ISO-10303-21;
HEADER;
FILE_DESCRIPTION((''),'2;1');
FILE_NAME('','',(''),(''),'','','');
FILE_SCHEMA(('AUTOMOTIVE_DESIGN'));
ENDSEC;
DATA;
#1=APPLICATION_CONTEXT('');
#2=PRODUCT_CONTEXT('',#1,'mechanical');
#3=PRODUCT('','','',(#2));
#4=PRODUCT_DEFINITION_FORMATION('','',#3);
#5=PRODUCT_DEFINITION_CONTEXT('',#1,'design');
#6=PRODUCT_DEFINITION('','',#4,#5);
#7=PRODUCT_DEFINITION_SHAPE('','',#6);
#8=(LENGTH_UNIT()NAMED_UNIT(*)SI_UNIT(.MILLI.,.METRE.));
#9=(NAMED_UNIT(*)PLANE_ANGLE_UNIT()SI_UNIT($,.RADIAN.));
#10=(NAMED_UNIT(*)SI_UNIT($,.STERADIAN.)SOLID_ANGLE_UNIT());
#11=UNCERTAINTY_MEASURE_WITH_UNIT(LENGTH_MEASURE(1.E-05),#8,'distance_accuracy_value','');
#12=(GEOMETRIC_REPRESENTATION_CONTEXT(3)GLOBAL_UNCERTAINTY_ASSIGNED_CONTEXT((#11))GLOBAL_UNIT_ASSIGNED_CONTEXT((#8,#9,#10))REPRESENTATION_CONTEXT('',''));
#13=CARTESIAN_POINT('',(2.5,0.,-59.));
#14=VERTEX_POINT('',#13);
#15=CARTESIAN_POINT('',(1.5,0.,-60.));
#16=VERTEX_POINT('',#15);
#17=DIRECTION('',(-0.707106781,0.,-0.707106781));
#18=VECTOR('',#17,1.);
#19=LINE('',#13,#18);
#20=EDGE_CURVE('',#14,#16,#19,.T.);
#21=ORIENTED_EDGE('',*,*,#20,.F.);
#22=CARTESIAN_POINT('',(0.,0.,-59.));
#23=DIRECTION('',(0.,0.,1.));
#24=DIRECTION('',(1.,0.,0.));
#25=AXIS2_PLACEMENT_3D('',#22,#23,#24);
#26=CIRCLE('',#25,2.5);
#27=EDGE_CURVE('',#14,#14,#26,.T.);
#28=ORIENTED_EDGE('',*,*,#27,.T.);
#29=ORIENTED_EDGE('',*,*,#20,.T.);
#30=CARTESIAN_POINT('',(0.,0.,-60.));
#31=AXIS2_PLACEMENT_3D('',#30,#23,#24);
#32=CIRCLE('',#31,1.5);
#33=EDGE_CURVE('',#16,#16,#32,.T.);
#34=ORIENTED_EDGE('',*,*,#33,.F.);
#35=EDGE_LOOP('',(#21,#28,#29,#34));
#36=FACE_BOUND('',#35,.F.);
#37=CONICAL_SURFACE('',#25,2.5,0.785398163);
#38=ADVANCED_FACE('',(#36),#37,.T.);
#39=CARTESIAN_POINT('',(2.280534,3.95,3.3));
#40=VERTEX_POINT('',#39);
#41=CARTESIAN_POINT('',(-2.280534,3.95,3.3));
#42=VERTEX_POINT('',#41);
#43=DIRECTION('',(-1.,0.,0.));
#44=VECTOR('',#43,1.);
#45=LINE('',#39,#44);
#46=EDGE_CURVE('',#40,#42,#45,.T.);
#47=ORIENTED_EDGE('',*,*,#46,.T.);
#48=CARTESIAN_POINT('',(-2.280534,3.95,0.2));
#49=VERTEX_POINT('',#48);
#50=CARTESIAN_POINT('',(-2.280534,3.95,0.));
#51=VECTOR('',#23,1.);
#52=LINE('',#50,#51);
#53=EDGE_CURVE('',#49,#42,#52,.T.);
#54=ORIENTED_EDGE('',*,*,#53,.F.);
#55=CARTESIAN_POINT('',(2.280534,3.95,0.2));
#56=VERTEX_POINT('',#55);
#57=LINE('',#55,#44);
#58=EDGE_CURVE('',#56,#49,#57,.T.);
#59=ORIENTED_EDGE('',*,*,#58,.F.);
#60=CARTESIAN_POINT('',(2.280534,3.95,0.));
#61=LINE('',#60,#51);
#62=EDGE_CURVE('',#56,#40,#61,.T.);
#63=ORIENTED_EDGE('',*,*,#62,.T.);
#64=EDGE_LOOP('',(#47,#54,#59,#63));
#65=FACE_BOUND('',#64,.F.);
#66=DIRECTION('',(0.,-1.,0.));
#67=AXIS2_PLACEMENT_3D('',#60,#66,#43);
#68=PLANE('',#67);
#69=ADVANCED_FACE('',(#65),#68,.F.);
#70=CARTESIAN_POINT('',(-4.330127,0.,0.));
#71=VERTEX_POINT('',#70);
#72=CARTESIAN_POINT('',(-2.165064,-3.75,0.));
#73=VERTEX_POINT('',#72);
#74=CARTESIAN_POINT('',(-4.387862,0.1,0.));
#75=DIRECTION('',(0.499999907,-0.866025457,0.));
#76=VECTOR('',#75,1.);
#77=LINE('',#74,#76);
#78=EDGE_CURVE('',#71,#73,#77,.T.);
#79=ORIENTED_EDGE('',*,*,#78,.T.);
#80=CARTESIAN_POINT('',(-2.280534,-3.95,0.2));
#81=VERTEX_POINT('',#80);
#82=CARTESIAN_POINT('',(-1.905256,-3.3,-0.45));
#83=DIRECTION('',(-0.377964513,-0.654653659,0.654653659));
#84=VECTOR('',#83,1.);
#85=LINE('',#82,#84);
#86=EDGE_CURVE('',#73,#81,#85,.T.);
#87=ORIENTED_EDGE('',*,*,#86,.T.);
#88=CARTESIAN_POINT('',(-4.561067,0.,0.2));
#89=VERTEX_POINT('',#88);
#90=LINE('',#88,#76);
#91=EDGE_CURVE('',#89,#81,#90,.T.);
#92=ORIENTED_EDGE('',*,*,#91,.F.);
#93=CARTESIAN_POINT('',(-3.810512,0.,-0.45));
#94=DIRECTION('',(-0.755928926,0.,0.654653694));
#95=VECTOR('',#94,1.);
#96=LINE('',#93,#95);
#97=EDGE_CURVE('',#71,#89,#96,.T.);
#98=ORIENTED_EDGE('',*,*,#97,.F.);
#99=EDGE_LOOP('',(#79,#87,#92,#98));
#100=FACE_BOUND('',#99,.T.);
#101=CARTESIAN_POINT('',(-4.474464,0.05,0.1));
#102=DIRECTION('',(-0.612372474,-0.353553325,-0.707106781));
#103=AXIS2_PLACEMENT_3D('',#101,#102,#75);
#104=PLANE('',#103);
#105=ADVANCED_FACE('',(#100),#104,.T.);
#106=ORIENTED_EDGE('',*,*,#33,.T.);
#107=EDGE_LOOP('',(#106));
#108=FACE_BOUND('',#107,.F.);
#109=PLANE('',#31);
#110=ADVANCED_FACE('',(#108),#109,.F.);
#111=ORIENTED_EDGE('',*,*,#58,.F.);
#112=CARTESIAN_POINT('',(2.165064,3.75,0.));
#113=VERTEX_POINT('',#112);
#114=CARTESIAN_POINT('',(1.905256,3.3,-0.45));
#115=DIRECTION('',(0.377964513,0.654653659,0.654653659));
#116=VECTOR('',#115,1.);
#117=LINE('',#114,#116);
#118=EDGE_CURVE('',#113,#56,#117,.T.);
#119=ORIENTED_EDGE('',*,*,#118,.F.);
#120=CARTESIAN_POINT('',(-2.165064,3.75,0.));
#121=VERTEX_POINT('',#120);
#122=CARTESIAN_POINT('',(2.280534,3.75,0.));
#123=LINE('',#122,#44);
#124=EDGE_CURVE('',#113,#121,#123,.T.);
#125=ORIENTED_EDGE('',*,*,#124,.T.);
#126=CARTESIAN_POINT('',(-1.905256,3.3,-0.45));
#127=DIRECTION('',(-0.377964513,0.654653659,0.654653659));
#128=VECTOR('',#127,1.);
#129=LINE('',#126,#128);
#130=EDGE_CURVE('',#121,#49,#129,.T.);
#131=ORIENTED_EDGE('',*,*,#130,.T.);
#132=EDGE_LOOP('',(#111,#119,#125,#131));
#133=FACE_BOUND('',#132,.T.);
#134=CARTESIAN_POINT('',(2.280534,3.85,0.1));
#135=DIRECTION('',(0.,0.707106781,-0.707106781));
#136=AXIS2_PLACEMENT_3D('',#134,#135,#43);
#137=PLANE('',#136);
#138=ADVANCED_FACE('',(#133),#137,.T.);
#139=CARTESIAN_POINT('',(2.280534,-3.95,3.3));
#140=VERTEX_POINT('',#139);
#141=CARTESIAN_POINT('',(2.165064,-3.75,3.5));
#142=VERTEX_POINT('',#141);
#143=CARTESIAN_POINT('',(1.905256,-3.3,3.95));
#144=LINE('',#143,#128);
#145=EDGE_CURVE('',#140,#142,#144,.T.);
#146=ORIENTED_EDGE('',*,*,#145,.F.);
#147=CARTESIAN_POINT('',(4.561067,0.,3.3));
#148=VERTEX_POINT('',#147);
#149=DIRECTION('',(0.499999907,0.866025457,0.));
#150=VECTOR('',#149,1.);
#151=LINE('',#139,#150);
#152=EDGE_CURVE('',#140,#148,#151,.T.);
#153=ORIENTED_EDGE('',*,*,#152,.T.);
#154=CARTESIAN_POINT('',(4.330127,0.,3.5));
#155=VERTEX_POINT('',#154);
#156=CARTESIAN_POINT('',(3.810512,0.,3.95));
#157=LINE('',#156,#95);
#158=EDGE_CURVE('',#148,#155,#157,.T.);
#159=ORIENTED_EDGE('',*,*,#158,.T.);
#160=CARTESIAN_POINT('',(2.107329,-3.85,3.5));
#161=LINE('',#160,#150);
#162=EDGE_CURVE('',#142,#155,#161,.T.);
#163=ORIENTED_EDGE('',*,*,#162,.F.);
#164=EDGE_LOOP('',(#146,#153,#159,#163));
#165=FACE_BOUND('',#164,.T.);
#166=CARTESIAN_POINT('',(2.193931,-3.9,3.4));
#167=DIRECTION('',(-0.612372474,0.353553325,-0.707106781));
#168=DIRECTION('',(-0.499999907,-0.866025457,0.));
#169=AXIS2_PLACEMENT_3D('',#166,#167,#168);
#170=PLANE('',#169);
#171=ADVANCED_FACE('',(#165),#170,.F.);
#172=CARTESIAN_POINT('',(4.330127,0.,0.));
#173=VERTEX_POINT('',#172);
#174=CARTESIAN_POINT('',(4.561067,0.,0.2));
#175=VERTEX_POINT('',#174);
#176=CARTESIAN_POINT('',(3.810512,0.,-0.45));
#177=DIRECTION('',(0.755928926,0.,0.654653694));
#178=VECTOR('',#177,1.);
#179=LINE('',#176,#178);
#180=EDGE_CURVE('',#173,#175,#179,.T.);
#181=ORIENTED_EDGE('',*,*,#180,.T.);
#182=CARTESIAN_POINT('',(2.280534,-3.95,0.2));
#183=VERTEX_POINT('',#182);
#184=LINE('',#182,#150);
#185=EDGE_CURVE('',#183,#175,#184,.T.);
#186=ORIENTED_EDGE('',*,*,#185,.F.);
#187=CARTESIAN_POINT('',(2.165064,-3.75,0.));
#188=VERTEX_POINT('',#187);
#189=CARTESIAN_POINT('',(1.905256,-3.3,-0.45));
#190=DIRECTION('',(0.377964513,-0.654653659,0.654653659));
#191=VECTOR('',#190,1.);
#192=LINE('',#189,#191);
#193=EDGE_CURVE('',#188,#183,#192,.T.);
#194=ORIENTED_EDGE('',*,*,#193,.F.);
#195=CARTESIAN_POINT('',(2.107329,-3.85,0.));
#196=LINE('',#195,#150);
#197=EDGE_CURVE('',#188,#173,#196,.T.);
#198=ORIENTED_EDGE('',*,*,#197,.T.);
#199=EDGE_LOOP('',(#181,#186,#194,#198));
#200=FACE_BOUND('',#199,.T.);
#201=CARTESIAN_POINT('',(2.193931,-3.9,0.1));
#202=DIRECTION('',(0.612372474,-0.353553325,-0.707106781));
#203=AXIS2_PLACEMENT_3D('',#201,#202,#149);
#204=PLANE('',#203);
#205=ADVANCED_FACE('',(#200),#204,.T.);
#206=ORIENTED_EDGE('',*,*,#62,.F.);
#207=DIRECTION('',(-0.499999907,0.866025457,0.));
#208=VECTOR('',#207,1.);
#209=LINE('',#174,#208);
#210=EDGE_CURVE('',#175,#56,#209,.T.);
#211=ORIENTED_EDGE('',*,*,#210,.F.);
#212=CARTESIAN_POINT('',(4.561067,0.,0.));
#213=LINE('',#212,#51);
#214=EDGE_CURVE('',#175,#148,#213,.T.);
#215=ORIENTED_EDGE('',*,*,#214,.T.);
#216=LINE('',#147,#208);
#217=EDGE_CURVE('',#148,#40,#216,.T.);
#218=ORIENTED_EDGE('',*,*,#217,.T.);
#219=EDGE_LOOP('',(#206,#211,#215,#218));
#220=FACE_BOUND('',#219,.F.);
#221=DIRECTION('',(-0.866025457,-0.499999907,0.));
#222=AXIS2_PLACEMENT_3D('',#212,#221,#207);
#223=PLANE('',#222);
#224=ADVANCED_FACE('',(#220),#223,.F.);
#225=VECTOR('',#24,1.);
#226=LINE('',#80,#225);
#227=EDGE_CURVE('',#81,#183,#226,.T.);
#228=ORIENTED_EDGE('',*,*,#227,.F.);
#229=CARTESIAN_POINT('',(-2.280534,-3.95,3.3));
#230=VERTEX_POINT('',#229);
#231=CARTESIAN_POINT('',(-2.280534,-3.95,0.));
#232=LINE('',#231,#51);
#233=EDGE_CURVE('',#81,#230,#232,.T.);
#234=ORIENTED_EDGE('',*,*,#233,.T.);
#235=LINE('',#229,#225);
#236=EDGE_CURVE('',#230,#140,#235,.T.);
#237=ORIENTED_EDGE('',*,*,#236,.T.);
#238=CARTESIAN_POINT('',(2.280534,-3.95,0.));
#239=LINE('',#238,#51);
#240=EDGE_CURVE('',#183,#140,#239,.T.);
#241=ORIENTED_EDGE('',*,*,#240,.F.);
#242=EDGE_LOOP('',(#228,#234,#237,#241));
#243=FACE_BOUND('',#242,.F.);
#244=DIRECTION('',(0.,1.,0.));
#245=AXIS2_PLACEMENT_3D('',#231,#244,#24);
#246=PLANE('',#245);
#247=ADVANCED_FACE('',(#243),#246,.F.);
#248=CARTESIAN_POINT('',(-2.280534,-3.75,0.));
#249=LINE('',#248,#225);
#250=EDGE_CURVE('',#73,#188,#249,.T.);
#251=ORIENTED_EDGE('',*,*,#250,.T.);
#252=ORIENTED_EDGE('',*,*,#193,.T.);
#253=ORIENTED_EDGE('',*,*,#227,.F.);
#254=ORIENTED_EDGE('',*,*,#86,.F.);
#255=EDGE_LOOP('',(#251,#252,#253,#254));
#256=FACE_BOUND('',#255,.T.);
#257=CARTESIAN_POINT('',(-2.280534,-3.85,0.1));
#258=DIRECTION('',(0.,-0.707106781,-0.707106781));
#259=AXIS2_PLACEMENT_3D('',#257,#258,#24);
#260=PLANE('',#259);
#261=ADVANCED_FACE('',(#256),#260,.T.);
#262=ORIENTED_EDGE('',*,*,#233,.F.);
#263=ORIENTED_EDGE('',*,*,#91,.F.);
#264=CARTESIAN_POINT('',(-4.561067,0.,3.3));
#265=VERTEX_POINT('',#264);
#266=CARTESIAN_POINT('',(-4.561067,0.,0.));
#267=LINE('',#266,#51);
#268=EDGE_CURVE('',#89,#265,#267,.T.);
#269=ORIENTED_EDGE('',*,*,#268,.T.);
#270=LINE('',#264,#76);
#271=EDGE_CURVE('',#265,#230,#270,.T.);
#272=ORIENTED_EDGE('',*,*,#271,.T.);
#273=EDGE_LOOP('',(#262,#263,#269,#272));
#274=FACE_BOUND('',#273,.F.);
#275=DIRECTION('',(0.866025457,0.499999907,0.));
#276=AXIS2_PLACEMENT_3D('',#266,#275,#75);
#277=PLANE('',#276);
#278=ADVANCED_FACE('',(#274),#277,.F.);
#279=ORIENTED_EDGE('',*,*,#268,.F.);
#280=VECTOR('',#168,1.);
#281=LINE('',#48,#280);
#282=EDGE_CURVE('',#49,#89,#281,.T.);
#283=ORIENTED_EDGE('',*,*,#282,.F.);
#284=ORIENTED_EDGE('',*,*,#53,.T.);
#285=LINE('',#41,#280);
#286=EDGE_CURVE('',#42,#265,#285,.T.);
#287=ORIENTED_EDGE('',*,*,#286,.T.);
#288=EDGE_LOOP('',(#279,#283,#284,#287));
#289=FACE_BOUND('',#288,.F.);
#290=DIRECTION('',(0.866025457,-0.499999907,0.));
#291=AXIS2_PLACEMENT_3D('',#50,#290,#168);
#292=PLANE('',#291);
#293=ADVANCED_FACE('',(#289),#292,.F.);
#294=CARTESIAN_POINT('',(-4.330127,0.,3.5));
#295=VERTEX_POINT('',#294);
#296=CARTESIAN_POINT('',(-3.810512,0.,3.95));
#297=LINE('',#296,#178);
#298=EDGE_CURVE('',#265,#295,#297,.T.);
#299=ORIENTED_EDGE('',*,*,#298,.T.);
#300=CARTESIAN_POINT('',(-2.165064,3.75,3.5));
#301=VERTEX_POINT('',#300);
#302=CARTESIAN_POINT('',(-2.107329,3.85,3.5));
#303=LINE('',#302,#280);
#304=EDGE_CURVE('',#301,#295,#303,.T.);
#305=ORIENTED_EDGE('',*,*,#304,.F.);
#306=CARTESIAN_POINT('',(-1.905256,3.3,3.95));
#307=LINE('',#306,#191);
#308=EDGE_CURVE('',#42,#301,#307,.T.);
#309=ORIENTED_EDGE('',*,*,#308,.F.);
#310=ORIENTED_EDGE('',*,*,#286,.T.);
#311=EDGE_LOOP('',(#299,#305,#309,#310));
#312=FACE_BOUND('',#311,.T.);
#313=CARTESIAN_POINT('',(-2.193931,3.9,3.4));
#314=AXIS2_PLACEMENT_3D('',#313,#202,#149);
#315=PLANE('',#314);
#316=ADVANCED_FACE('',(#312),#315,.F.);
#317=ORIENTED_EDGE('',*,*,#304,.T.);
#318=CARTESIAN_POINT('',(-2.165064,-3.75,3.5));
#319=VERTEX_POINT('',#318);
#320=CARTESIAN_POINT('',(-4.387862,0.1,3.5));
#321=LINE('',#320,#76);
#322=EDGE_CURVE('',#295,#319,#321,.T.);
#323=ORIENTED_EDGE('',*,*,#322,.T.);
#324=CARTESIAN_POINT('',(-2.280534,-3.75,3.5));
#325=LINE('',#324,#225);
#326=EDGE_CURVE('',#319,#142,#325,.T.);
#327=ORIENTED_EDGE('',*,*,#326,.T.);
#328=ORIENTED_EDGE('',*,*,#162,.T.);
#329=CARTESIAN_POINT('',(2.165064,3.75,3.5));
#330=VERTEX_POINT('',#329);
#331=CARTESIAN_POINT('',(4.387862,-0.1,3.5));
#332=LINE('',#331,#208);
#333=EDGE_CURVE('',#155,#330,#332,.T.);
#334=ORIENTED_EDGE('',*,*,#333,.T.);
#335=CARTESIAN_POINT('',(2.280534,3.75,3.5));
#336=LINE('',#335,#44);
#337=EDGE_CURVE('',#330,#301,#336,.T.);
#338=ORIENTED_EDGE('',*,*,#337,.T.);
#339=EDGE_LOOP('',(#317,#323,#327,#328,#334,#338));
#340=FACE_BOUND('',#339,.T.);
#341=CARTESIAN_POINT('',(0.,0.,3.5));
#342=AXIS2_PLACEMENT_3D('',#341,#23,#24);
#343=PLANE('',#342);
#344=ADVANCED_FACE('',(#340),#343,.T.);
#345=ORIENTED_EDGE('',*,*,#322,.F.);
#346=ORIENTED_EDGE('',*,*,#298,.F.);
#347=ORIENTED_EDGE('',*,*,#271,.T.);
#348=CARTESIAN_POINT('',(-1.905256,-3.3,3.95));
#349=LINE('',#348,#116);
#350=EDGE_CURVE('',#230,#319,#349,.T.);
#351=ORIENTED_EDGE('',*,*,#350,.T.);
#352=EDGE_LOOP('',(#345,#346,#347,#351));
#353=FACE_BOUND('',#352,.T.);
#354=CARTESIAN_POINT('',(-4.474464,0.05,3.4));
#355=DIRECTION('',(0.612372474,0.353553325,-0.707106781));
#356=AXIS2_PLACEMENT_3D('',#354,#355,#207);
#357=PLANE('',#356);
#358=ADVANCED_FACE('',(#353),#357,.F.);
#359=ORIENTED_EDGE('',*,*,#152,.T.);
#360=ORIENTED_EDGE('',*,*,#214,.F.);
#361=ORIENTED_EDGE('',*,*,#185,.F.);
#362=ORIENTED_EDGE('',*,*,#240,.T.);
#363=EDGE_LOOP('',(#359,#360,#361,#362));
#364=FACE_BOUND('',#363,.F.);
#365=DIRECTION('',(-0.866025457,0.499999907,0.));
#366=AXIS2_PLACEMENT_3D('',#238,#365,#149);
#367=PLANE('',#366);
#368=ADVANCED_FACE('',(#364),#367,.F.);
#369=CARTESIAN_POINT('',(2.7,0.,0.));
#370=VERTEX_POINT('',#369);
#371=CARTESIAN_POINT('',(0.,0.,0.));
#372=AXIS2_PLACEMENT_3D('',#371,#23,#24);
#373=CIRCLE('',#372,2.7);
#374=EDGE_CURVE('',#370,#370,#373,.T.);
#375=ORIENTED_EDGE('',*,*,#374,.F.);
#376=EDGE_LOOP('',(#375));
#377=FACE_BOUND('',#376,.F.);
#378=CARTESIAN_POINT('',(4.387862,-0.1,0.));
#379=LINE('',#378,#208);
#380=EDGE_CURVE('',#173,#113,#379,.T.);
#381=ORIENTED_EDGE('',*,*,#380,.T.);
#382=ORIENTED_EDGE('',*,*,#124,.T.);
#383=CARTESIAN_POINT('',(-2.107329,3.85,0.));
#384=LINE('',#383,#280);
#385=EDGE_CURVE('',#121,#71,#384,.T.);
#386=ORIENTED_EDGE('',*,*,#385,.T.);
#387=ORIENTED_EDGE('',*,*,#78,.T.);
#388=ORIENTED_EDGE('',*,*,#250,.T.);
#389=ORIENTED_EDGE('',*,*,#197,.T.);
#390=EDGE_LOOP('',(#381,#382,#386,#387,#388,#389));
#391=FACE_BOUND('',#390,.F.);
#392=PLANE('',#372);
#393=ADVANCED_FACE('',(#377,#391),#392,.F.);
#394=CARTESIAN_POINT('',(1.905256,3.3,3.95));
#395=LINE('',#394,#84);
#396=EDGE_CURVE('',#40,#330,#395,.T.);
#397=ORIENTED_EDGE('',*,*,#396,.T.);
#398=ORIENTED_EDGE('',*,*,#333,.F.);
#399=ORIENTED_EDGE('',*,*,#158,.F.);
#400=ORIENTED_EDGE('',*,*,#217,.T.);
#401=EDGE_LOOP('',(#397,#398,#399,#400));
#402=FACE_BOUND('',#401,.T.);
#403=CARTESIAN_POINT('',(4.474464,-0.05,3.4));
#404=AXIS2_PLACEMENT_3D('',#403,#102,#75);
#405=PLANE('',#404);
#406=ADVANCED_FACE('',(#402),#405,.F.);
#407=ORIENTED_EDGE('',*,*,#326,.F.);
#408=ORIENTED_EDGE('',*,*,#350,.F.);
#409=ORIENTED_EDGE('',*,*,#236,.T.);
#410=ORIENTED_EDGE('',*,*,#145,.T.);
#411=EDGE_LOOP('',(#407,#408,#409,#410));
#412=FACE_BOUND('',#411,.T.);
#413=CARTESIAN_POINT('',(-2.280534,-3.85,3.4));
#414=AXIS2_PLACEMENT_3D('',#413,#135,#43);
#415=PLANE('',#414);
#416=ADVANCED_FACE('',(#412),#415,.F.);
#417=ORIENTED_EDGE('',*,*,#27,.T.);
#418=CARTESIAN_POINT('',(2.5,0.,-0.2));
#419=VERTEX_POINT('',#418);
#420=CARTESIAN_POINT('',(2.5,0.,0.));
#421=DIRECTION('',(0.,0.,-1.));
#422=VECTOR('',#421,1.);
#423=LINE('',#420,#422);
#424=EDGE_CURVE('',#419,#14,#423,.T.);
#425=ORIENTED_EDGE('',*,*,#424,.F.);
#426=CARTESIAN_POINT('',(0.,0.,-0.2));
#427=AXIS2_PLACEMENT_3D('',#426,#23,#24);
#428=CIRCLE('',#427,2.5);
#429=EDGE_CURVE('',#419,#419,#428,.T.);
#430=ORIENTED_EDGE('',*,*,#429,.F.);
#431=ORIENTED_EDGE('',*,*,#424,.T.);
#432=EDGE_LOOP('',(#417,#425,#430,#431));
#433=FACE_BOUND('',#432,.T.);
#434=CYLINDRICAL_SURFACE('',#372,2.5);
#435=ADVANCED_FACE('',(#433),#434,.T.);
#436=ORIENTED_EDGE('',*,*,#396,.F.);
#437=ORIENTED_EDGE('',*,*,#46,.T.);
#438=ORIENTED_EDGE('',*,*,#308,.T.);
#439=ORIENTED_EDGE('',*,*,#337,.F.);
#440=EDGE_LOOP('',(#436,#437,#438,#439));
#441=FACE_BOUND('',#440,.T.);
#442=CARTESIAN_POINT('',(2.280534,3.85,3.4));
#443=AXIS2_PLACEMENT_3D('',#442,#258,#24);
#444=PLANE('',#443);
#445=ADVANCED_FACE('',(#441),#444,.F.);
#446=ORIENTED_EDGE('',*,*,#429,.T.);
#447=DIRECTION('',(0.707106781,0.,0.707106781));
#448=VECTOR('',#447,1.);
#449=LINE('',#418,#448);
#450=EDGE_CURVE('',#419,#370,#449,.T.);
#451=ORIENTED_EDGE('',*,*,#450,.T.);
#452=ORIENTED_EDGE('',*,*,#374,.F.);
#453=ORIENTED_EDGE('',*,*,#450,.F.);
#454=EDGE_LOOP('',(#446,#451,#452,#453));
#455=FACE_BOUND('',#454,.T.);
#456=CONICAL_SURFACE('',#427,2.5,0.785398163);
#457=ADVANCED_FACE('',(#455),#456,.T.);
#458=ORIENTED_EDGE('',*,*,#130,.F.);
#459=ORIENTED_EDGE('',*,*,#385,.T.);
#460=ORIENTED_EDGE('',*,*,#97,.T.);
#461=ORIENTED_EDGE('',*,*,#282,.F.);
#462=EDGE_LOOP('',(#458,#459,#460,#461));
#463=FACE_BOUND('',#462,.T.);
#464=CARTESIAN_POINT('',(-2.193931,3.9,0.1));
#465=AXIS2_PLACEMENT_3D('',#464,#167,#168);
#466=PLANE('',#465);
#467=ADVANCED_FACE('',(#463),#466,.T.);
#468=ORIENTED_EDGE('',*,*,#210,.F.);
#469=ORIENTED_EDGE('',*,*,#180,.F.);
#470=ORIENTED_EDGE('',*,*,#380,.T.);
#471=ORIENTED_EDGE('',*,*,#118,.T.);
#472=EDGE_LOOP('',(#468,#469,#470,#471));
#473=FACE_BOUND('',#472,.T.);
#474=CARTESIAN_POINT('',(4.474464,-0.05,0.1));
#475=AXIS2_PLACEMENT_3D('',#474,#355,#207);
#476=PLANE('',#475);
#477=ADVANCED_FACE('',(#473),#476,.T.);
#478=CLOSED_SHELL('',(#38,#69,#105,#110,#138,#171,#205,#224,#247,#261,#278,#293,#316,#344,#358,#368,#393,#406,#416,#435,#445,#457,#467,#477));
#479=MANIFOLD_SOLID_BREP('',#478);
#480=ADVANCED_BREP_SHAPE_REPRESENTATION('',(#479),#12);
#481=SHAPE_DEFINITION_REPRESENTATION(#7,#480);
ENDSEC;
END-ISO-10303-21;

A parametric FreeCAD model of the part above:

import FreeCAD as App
import Part
import Sketcher
from FreeCAD import Vector
Q = App.Units.Quantity


def edges_at(feature, points):
    """Names of the edges that pass closest to the given points."""
    edges = feature.Shape.Edges
    near = lambda p: min(range(len(edges)), key=lambda i: edges[i].distToShape(Part.Vertex(*p))[0])
    return sorted({f"Edge{near(p) + 1}" for p in points})

doc = App.newDocument("Part")
params = doc.addObject("Spreadsheet::Sheet", "Params")
for row, (alias, value) in enumerate([
    ("pad1_length", "3.5 mm"),
    ("sketch2_diameter", "5 mm"),
    ("pad2_length", "60 mm"),
    ("chamfer_size", "1 mm"),
    ("chamfer2_size", "0.2 mm"),
], start=1):
    params.set(f"A{row}", alias)
    params.set(f"B{row}", "=" + value)
    params.setAlias(f"B{row}", alias)

body = doc.addObject("PartDesign::Body", "Body")

sketch1 = body.newObject("Sketcher::SketchObject", "Sketch")
sketch1.AttachmentSupport = (doc.getObject("XY_Plane"), [""])
sketch1.MapMode = "FlatFace"
sketch1.addGeometry([
    Part.LineSegment(Vector(2.3, 4, 0), Vector(-2.3, 4, 0)),
    Part.LineSegment(Vector(-2.3, 4, 0), Vector(-4.6, 0, 0)),
    Part.LineSegment(Vector(-4.6, 0, 0), Vector(-2.3, -4, 0)),
    Part.LineSegment(Vector(-2.3, -4, 0), Vector(2.3, -4, 0)),
    Part.LineSegment(Vector(2.3, -4, 0), Vector(4.6, 0, 0)),
    Part.LineSegment(Vector(4.6, 0, 0), Vector(2.3, 4, 0)),
], False)
sketch1.addConstraint([
    Sketcher.Constraint("Coincident", 0, 2, 1, 1),
    Sketcher.Constraint("Coincident", 1, 2, 2, 1),
    Sketcher.Constraint("Coincident", 2, 2, 3, 1),
    Sketcher.Constraint("Coincident", 3, 2, 4, 1),
    Sketcher.Constraint("Coincident", 4, 2, 5, 1),
    Sketcher.Constraint("Coincident", 5, 2, 0, 1),
    Sketcher.Constraint("Horizontal", 0),
    Sketcher.Constraint("Horizontal", 3),
    Sketcher.Constraint("Symmetric", 0, 2, 3, 2, -1, 1),
    Sketcher.Constraint("Symmetric", 1, 2, 4, 2, -1, 1),
    Sketcher.Constraint("PointOnObject", 1, 2, -1),
    Sketcher.Constraint("Parallel", 2, 5),
    Sketcher.Constraint("Vertical", 0, 2, 2, 2),
    Sketcher.Constraint("Angle", 1, Q("-119.999994 deg")),
    Sketcher.Constraint("DistanceY", 2, 2, 0, 2, Q("7.9 mm")),
    Sketcher.Constraint("DistanceX", 1, 2, 3, 2, Q("6.841601 mm")),
])
pad1 = body.newObject("PartDesign::Pad", "Pad")
pad1.Profile = sketch1
pad1.setExpression("Length", "Params.pad1_length")

sketch2 = body.newObject("Sketcher::SketchObject", "Sketch001")
sketch2.AttachmentSupport = (doc.getObject("XY_Plane"), [""])
sketch2.MapMode = "FlatFace"
sketch2.addGeometry(Part.Circle(Vector(0, 0, 0), Vector(0, 0, 1), 2.5), False)
sketch2.addConstraint([
    Sketcher.Constraint("Coincident", 0, 3, -1, 1),
    Sketcher.Constraint("Diameter", 0, Q("5 mm")),
])
sketch2.setExpression("Constraints[1]", "Params.sketch2_diameter")
pad2 = body.newObject("PartDesign::Pad", "Pad001")
pad2.Profile = sketch2
pad2.setExpression("Length", "Params.pad2_length")
pad2.Reversed = True
doc.recompute()

chamfer = body.newObject("PartDesign::Chamfer", "Chamfer")
chamfer.Base = (pad2, edges_at(pad2, [(-2.5, 0, -60)]))
chamfer.setExpression("Size", "Params.chamfer_size")
doc.recompute()

chamfer2 = body.newObject("PartDesign::Chamfer", "Chamfer001")
chamfer2.Base = (chamfer, edges_at(chamfer, [
    (0, 3.95, 3.5),
    (-3.421, 1.975, 3.5),
    (-3.421, -1.975, 3.5),
    (0, -3.95, 3.5),
    (3.421, -1.975, 3.5),
    (3.421, 1.975, 3.5),
    (0, 3.95, 0),
    (3.421, 1.975, 0),
    (-3.421, 1.975, 0),
    (3.421, -1.975, 0),
    (-3.421, -1.975, 0),
    (0, -3.95, 0),
    (-2.5, 0, 0),
]))
chamfer2.setExpression("Size", "Params.chamfer2_size")

doc.recompute()
